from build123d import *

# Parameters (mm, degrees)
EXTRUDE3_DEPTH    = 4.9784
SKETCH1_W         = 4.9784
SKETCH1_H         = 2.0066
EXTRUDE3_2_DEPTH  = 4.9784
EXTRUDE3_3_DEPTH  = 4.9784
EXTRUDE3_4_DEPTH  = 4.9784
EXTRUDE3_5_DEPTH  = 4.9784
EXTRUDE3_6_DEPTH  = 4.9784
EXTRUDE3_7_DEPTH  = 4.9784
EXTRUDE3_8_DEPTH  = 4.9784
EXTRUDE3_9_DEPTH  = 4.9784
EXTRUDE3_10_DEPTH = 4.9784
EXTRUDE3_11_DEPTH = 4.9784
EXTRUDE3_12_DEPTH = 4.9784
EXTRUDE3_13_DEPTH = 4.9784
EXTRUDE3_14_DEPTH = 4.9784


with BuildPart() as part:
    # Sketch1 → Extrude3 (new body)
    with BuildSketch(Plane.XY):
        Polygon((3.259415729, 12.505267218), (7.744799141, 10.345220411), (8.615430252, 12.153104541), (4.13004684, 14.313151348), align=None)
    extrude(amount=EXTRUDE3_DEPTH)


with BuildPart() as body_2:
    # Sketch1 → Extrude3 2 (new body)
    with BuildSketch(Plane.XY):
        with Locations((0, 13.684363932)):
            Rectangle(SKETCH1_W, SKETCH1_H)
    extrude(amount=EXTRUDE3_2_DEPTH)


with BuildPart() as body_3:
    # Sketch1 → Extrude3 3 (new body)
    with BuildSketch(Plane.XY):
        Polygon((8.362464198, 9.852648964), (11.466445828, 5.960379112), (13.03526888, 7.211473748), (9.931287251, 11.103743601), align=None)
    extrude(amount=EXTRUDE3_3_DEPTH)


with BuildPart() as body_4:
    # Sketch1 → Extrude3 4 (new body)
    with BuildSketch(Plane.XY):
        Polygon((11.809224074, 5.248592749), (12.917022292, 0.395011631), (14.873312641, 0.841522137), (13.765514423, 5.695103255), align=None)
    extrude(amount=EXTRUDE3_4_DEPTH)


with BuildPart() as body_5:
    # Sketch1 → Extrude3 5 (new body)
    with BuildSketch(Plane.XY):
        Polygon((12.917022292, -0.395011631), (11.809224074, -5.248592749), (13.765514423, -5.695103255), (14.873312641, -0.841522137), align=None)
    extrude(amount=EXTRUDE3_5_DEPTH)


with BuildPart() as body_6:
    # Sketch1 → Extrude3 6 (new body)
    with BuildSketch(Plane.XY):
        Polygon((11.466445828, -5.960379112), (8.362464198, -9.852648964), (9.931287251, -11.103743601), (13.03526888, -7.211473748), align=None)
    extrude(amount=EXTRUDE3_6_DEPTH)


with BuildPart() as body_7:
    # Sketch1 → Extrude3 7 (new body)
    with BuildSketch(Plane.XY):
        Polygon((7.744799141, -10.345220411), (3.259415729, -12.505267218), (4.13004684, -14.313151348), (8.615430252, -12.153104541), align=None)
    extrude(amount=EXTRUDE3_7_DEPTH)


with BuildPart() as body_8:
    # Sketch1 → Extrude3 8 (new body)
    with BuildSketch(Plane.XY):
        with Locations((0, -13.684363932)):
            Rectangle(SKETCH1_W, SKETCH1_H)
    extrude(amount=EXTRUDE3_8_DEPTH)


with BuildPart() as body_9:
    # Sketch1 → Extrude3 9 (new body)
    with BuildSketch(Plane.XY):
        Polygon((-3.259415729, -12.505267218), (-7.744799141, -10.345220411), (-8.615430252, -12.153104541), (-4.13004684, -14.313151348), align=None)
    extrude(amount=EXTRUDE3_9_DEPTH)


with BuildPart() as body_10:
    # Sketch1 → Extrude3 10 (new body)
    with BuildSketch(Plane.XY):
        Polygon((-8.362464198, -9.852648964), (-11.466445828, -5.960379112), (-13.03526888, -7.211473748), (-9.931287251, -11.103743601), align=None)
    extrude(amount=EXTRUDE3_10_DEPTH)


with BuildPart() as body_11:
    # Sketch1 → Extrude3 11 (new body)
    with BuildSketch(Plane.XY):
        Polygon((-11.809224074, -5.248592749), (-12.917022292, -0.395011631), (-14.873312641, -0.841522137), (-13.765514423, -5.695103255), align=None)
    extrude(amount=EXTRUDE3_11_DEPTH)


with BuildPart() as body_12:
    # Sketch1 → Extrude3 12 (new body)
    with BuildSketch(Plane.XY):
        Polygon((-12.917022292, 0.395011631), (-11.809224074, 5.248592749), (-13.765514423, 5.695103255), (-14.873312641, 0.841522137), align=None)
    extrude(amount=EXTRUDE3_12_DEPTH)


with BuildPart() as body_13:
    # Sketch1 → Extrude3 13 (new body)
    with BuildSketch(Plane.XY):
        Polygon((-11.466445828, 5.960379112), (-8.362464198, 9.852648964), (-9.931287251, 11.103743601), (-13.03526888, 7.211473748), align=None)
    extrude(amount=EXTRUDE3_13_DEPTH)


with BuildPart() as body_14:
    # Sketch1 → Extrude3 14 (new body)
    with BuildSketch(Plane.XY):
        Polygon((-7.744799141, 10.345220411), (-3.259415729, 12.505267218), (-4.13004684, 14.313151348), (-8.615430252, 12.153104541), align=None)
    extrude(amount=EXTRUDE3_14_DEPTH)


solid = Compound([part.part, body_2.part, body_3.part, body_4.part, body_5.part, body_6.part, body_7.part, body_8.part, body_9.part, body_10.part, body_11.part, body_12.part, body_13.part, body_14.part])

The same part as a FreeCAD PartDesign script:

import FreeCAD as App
import Part
import Sketcher
Q = App.Units.Quantity

doc = App.newDocument("Part")
body = doc.addObject("PartDesign::Body", "Body")

sketch1 = body.newObject("Sketcher::SketchObject", "Sketch")
sketch1.AttachmentSupport = (doc.getObject("XY_Plane"), [""])
sketch1.MapMode = "FlatFace"
sketch1.addGeometry([
    Part.LineSegment(App.Vector(3.3, 12.5, 0), App.Vector(7.7, 10.3, 0)),
    Part.LineSegment(App.Vector(7.7, 10.3, 0), App.Vector(8.6, 12.2, 0)),
    Part.LineSegment(App.Vector(8.6, 12.2, 0), App.Vector(4.1, 14.3, 0)),
    Part.LineSegment(App.Vector(4.1, 14.3, 0), App.Vector(3.3, 12.5, 0)),
], False)
sketch1.addConstraint([
    Sketcher.Constraint("Coincident", 0, 2, 1, 1),
    Sketcher.Constraint("Coincident", 1, 2, 2, 1),
    Sketcher.Constraint("Coincident", 2, 2, 3, 1),
    Sketcher.Constraint("Coincident", 3, 2, 0, 1),
    Sketcher.Constraint("Perpendicular", 0, 1),
    Sketcher.Constraint("Perpendicular", 1, 2),
    Sketcher.Constraint("Perpendicular", 2, 3),
    Sketcher.Constraint("Distance", 0, Q("0.196 in")),
    Sketcher.Constraint("Distance", 1, Q("0.079 in")),
    Sketcher.Constraint("DistanceX", -1, 1, 0, 2, Q("7.744799 mm")),
    Sketcher.Constraint("DistanceY", -1, 1, 0, 2, Q("10.34522 mm")),
    Sketcher.Constraint("DistanceX", -1, 1, 1, 2, Q("8.61543 mm")),
])
pad1 = body.newObject("PartDesign::Pad", "Pad")
pad1.Profile = sketch1
pad1.Length = Q("0.196 in")
body2 = doc.addObject("PartDesign::Body", "Body001")

sketch2 = body2.newObject("Sketcher::SketchObject", "Sketch001")
sketch2.AttachmentSupport = (doc.getObject("XY_Plane001"), [""])
sketch2.MapMode = "FlatFace"
sketch2.addGeometry([
    Part.LineSegment(App.Vector(-2.5, 14.7, 0), App.Vector(-2.5, 12.7, 0)),
    Part.LineSegment(App.Vector(-2.5, 12.7, 0), App.Vector(2.5, 12.7, 0)),
    Part.LineSegment(App.Vector(2.5, 12.7, 0), App.Vector(2.5, 14.7, 0)),
    Part.LineSegment(App.Vector(2.5, 14.7, 0), App.Vector(-2.5, 14.7, 0)),
], False)
sketch2.addConstraint([
    Sketcher.Constraint("Coincident", 0, 2, 1, 1),
    Sketcher.Constraint("Coincident", 1, 2, 2, 1),
    Sketcher.Constraint("Coincident", 2, 2, 3, 1),
    Sketcher.Constraint("Coincident", 3, 2, 0, 1),
    Sketcher.Constraint("Vertical", 0),
    Sketcher.Constraint("Horizontal", 1),
    Sketcher.Constraint("Vertical", 2),
    Sketcher.Constraint("Horizontal", 3),
    Sketcher.Constraint("DistanceX", 1, 1, 1, 2, Q("0.196 in")),
    Sketcher.Constraint("DistanceY", 0, 2, 0, 1, Q("0.079 in")),
    Sketcher.Constraint("DistanceX", 0, 2, -1, 1, Q("0.098 in")),
    Sketcher.Constraint("DistanceY", -1, 1, 0, 2, Q("12.681064 mm")),
])
pad2 = body2.newObject("PartDesign::Pad", "Pad001")
pad2.Profile = sketch2
pad2.Length = Q("0.196 in")
body3 = doc.addObject("PartDesign::Body", "Body002")

sketch3 = body3.newObject("Sketcher::SketchObject", "Sketch002")
sketch3.AttachmentSupport = (doc.getObject("XY_Plane002"), [""])
sketch3.MapMode = "FlatFace"
sketch3.addGeometry([
    Part.LineSegment(App.Vector(8.4, 9.9, 0), App.Vector(11.5, 6, 0)),
    Part.LineSegment(App.Vector(11.5, 6, 0), App.Vector(13, 7.2, 0)),
    Part.LineSegment(App.Vector(13, 7.2, 0), App.Vector(9.9, 11.1, 0)),
    Part.LineSegment(App.Vector(9.9, 11.1, 0), App.Vector(8.4, 9.9, 0)),
], False)
sketch3.addConstraint([
    Sketcher.Constraint("Coincident", 0, 2, 1, 1),
    Sketcher.Constraint("Coincident", 1, 2, 2, 1),
    Sketcher.Constraint("Coincident", 2, 2, 3, 1),
    Sketcher.Constraint("Coincident", 3, 2, 0, 1),
    Sketcher.Constraint("Perpendicular", 0, 1),
    Sketcher.Constraint("Perpendicular", 1, 2),
    Sketcher.Constraint("Perpendicular", 2, 3),
    Sketcher.Constraint("Distance", 0, Q("0.196 in")),
    Sketcher.Constraint("Distance", 1, Q("0.079 in")),
    Sketcher.Constraint("DistanceY", -1, 1, 0, 2, Q("5.960379 mm")),
    Sketcher.Constraint("DistanceX", -1, 1, 1, 2, Q("13.035269 mm")),
    Sketcher.Constraint("DistanceY", -1, 1, 3, 2, Q("9.852649 mm")),
])
pad3 = body3.newObject("PartDesign::Pad", "Pad002")
pad3.Profile = sketch3
pad3.Length = Q("0.196 in")
body4 = doc.addObject("PartDesign::Body", "Body003")

sketch4 = body4.newObject("Sketcher::SketchObject", "Sketch003")
sketch4.AttachmentSupport = (doc.getObject("XY_Plane003"), [""])
sketch4.MapMode = "FlatFace"
sketch4.addGeometry([
    Part.LineSegment(App.Vector(11.8, 5.2, 0), App.Vector(12.9, 0.4, 0)),
    Part.LineSegment(App.Vector(12.9, 0.4, 0), App.Vector(14.9, 0.8, 0)),
    Part.LineSegment(App.Vector(14.9, 0.8, 0), App.Vector(13.8, 5.7, 0)),
    Part.LineSegment(App.Vector(13.8, 5.7, 0), App.Vector(11.8, 5.2, 0)),
], False)
sketch4.addConstraint([
    Sketcher.Constraint("Coincident", 0, 2, 1, 1),
    Sketcher.Constraint("Coincident", 1, 2, 2, 1),
    Sketcher.Constraint("Coincident", 2, 2, 3, 1),
    Sketcher.Constraint("Coincident", 3, 2, 0, 1),
    Sketcher.Constraint("Perpendicular", 0, 1),
    Sketcher.Constraint("Perpendicular", 1, 2),
    Sketcher.Constraint("Perpendicular", 2, 3),
    Sketcher.Constraint("Distance", 0, Q("0.196 in")),
    Sketcher.Constraint("Distance", 1, Q("0.079 in")),
    Sketcher.Constraint("DistanceX", 2, 2, 1, 2, Q("1.107798 mm")),
    Sketcher.Constraint("DistanceY", -1, 1, 0, 2, Q("0.395012 mm")),
    Sketcher.Constraint("DistanceX", -1, 1, 0, 2, Q("12.917022 mm")),
])
pad4 = body4.newObject("PartDesign::Pad", "Pad003")
pad4.Profile = sketch4
pad4.Length = Q("0.196 in")
body5 = doc.addObject("PartDesign::Body", "Body004")

sketch5 = body5.newObject("Sketcher::SketchObject", "Sketch004")
sketch5.AttachmentSupport = (doc.getObject("XY_Plane004"), [""])
sketch5.MapMode = "FlatFace"
sketch5.addGeometry([
    Part.LineSegment(App.Vector(12.9, -0.4, 0), App.Vector(11.8, -5.2, 0)),
    Part.LineSegment(App.Vector(11.8, -5.2, 0), App.Vector(13.8, -5.7, 0)),
    Part.LineSegment(App.Vector(13.8, -5.7, 0), App.Vector(14.9, -0.8, 0)),
    Part.LineSegment(App.Vector(14.9, -0.8, 0), App.Vector(12.9, -0.4, 0)),
], False)
sketch5.addConstraint([
    Sketcher.Constraint("Coincident", 0, 2, 1, 1),
    Sketcher.Constraint("Coincident", 1, 2, 2, 1),
    Sketcher.Constraint("Coincident", 2, 2, 3, 1),
    Sketcher.Constraint("Coincident", 3, 2, 0, 1),
    Sketcher.Constraint("Perpendicular", 0, 1),
    Sketcher.Constraint("Perpendicular", 1, 2),
    Sketcher.Constraint("Perpendicular", 2, 3),
    Sketcher.Constraint("Distance", 0, Q("0.196 in")),
    Sketcher.Constraint("Distance", 1, Q("0.079 in")),
    Sketcher.Constraint("DistanceX", 1, 2, 2, 2, Q("1.107798 mm")),
    Sketcher.Constraint("DistanceY", 3, 2, -1, 1, Q("0.395012 mm")),
    Sketcher.Constraint("DistanceX", -1, 1, 0, 2, Q("11.809224 mm")),
])
pad5 = body5.newObject("PartDesign::Pad", "Pad004")
pad5.Profile = sketch5
pad5.Length = Q("0.196 in")
body6 = doc.addObject("PartDesign::Body", "Body005")

sketch6 = body6.newObject("Sketcher::SketchObject", "Sketch005")
sketch6.AttachmentSupport = (doc.getObject("XY_Plane005"), [""])
sketch6.MapMode = "FlatFace"
sketch6.addGeometry([
    Part.LineSegment(App.Vector(11.5, -6, 0), App.Vector(8.4, -9.9, 0)),
    Part.LineSegment(App.Vector(8.4, -9.9, 0), App.Vector(9.9, -11.1, 0)),
    Part.LineSegment(App.Vector(9.9, -11.1, 0), App.Vector(13, -7.2, 0)),
    Part.LineSegment(App.Vector(13, -7.2, 0), App.Vector(11.5, -6, 0)),
], False)
sketch6.addConstraint([
    Sketcher.Constraint("Coincident", 0, 2, 1, 1),
    Sketcher.Constraint("Coincident", 1, 2, 2, 1),
    Sketcher.Constraint("Coincident", 2, 2, 3, 1),
    Sketcher.Constraint("Coincident", 3, 2, 0, 1),
    Sketcher.Constraint("Perpendicular", 0, 1),
    Sketcher.Constraint("Perpendicular", 1, 2),
    Sketcher.Constraint("Perpendicular", 2, 3),
    Sketcher.Constraint("Distance", 0, Q("0.196 in")),
    Sketcher.Constraint("Distance", 1, Q("0.079 in")),
    Sketcher.Constraint("DistanceY", 0, 2, -1, 1, Q("9.852649 mm")),
    Sketcher.Constraint("DistanceX", -1, 1, 2, 2, Q("13.035269 mm")),
    Sketcher.Constraint("DistanceY", 3, 2, -1, 1, Q("5.960379 mm")),
])
pad6 = body6.newObject("PartDesign::Pad", "Pad005")
pad6.Profile = sketch6
pad6.Length = Q("0.196 in")
body7 = doc.addObject("PartDesign::Body", "Body006")

sketch7 = body7.newObject("Sketcher::SketchObject", "Sketch006")
sketch7.AttachmentSupport = (doc.getObject("XY_Plane006"), [""])
sketch7.MapMode = "FlatFace"
sketch7.addGeometry([
    Part.LineSegment(App.Vector(7.7, -10.3, 0), App.Vector(3.3, -12.5, 0)),
    Part.LineSegment(App.Vector(3.3, -12.5, 0), App.Vector(4.1, -14.3, 0)),
    Part.LineSegment(App.Vector(4.1, -14.3, 0), App.Vector(8.6, -12.2, 0)),
    Part.LineSegment(App.Vector(8.6, -12.2, 0), App.Vector(7.7, -10.3, 0)),
], False)
sketch7.addConstraint([
    Sketcher.Constraint("Coincident", 0, 2, 1, 1),
    Sketcher.Constraint("Coincident", 1, 2, 2, 1),
    Sketcher.Constraint("Coincident", 2, 2, 3, 1),
    Sketcher.Constraint("Coincident", 3, 2, 0, 1),
    Sketcher.Constraint("Perpendicular", 0, 1),
    Sketcher.Constraint("Perpendicular", 1, 2),
    Sketcher.Constraint("Perpendicular", 2, 3),
    Sketcher.Constraint("Distance", 0, Q("0.196 in")),
    Sketcher.Constraint("Distance", 1, Q("0.079 in")),
    Sketcher.Constraint("DistanceX", -1, 1, 3, 2, Q("7.744799 mm")),
    Sketcher.Constraint("DistanceY", 1, 2, -1, 1, Q("14.313151 mm")),
    Sketcher.Constraint("DistanceX", -1, 1, 2, 2, Q("8.61543 mm")),
])
pad7 = body7.newObject("PartDesign::Pad", "Pad006")
pad7.Profile = sketch7
pad7.Length = Q("0.196 in")
body8 = doc.addObject("PartDesign::Body", "Body007")

sketch8 = body8.newObject("Sketcher::SketchObject", "Sketch007")
sketch8.AttachmentSupport = (doc.getObject("XY_Plane007"), [""])
sketch8.MapMode = "FlatFace"
sketch8.addGeometry([
    Part.LineSegment(App.Vector(-2.5, -12.7, 0), App.Vector(-2.5, -14.7, 0)),
    Part.LineSegment(App.Vector(-2.5, -14.7, 0), App.Vector(2.5, -14.7, 0)),
    Part.LineSegment(App.Vector(2.5, -14.7, 0), App.Vector(2.5, -12.7, 0)),
    Part.LineSegment(App.Vector(2.5, -12.7, 0), App.Vector(-2.5, -12.7, 0)),
], False)
sketch8.addConstraint([
    Sketcher.Constraint("Coincident", 0, 2, 1, 1),
    Sketcher.Constraint("Coincident", 1, 2, 2, 1),
    Sketcher.Constraint("Coincident", 2, 2, 3, 1),
    Sketcher.Constraint("Coincident", 3, 2, 0, 1),
    Sketcher.Constraint("Vertical", 0),
    Sketcher.Constraint("Horizontal", 1),
    Sketcher.Constraint("Vertical", 2),
    Sketcher.Constraint("Horizontal", 3),
    Sketcher.Constraint("DistanceX", 1, 1, 1, 2, Q("0.196 in")),
    Sketcher.Constraint("DistanceY", 0, 2, 0, 1, Q("0.079 in")),
    Sketcher.Constraint("DistanceX", 0, 2, -1, 1, Q("0.098 in")),
    Sketcher.Constraint("DistanceY", 0, 2, -1, 1, Q("14.687664 mm")),
])
pad8 = body8.newObject("PartDesign::Pad", "Pad007")
pad8.Profile = sketch8
pad8.Length = Q("0.196 in")
body9 = doc.addObject("PartDesign::Body", "Body008")

sketch9 = body9.newObject("Sketcher::SketchObject", "Sketch008")
sketch9.AttachmentSupport = (doc.getObject("XY_Plane008"), [""])
sketch9.MapMode = "FlatFace"
sketch9.addGeometry([
    Part.LineSegment(App.Vector(-3.3, -12.5, 0), App.Vector(-7.7, -10.3, 0)),
    Part.LineSegment(App.Vector(-7.7, -10.3, 0), App.Vector(-8.6, -12.2, 0)),
    Part.LineSegment(App.Vector(-8.6, -12.2, 0), App.Vector(-4.1, -14.3, 0)),
    Part.LineSegment(App.Vector(-4.1, -14.3, 0), App.Vector(-3.3, -12.5, 0)),
], False)
sketch9.addConstraint([
    Sketcher.Constraint("Coincident", 0, 2, 1, 1),
    Sketcher.Constraint("Coincident", 1, 2, 2, 1),
    Sketcher.Constraint("Coincident", 2, 2, 3, 1),
    Sketcher.Constraint("Coincident", 3, 2, 0, 1),
    Sketcher.Constraint("Perpendicular", 0, 1),
    Sketcher.Constraint("Perpendicular", 1, 2),
    Sketcher.Constraint("Perpendicular", 2, 3),
    Sketcher.Constraint("Distance", 0, Q("0.196 in")),
    Sketcher.Constraint("Distance", 1, Q("0.079 in")),
    Sketcher.Constraint("DistanceX", 0, 2, -1, 1, Q("7.744799 mm")),
    Sketcher.Constraint("DistanceY", 0, 2, -1, 1, Q("10.34522 mm")),
    Sketcher.Constraint("DistanceX", 1, 2, -1, 1, Q("8.61543 mm")),
])
pad9 = body9.newObject("PartDesign::Pad", "Pad008")
pad9.Profile = sketch9
pad9.Length = Q("0.196 in")
body10 = doc.addObject("PartDesign::Body", "Body009")

sketch10 = body10.newObject("Sketcher::SketchObject", "Sketch009")
sketch10.AttachmentSupport = (doc.getObject("XY_Plane009"), [""])
sketch10.MapMode = "FlatFace"
sketch10.addGeometry([
    Part.LineSegment(App.Vector(-8.4, -9.9, 0), App.Vector(-11.5, -6, 0)),
    Part.LineSegment(App.Vector(-11.5, -6, 0), App.Vector(-13, -7.2, 0)),
    Part.LineSegment(App.Vector(-13, -7.2, 0), App.Vector(-9.9, -11.1, 0)),
    Part.LineSegment(App.Vector(-9.9, -11.1, 0), App.Vector(-8.4, -9.9, 0)),
], False)
sketch10.addConstraint([
    Sketcher.Constraint("Coincident", 0, 2, 1, 1),
    Sketcher.Constraint("Coincident", 1, 2, 2, 1),
    Sketcher.Constraint("Coincident", 2, 2, 3, 1),
    Sketcher.Constraint("Coincident", 3, 2, 0, 1),
    Sketcher.Constraint("Perpendicular", 0, 1),
    Sketcher.Constraint("Perpendicular", 1, 2),
    Sketcher.Constraint("Perpendicular", 2, 3),
    Sketcher.Constraint("Distance", 0, Q("0.196 in")),
    Sketcher.Constraint("Distance", 1, Q("0.079 in")),
    Sketcher.Constraint("DistanceY", 0, 2, -1, 1, Q("5.960379 mm")),
    Sketcher.Constraint("DistanceX", 1, 2, -1, 1, Q("13.035269 mm")),
    Sketcher.Constraint("DistanceY", 3, 2, -1, 1, Q("9.852649 mm")),
])
pad10 = body10.newObject("PartDesign::Pad", "Pad009")
pad10.Profile = sketch10
pad10.Length = Q("0.196 in")
body11 = doc.addObject("PartDesign::Body", "Body010")

sketch11 = body11.newObject("Sketcher::SketchObject", "Sketch010")
sketch11.AttachmentSupport = (doc.getObject("XY_Plane010"), [""])
sketch11.MapMode = "FlatFace"
sketch11.addGeometry([
    Part.LineSegment(App.Vector(-11.8, -5.2, 0), App.Vector(-12.9, -0.4, 0)),
    Part.LineSegment(App.Vector(-12.9, -0.4, 0), App.Vector(-14.9, -0.8, 0)),
    Part.LineSegment(App.Vector(-14.9, -0.8, 0), App.Vector(-13.8, -5.7, 0)),
    Part.LineSegment(App.Vector(-13.8, -5.7, 0), App.Vector(-11.8, -5.2, 0)),
], False)
sketch11.addConstraint([
    Sketcher.Constraint("Coincident", 0, 2, 1, 1),
    Sketcher.Constraint("Coincident", 1, 2, 2, 1),
    Sketcher.Constraint("Coincident", 2, 2, 3, 1),
    Sketcher.Constraint("Coincident", 3, 2, 0, 1),
    Sketcher.Constraint("Perpendicular", 0, 1),
    Sketcher.Constraint("Perpendicular", 1, 2),
    Sketcher.Constraint("Perpendicular", 2, 3),
    Sketcher.Constraint("Distance", 0, Q("0.196 in")),
    Sketcher.Constraint("Distance", 1, Q("0.079 in")),
    Sketcher.Constraint("DistanceX", 1, 2, 2, 2, Q("1.107798 mm")),
    Sketcher.Constraint("DistanceY", 0, 2, -1, 1, Q("0.395012 mm")),
    Sketcher.Constraint("DistanceX", 0, 2, -1, 1, Q("12.917022 mm")),
])
pad11 = body11.newObject("PartDesign::Pad", "Pad010")
pad11.Profile = sketch11
pad11.Length = Q("0.196 in")
body12 = doc.addObject("PartDesign::Body", "Body011")

sketch12 = body12.newObject("Sketcher::SketchObject", "Sketch011")
sketch12.AttachmentSupport = (doc.getObject("XY_Plane011"), [""])
sketch12.MapMode = "FlatFace"
sketch12.addGeometry([
    Part.LineSegment(App.Vector(-12.9, 0.4, 0), App.Vector(-11.8, 5.2, 0)),
    Part.LineSegment(App.Vector(-11.8, 5.2, 0), App.Vector(-13.8, 5.7, 0)),
    Part.LineSegment(App.Vector(-13.8, 5.7, 0), App.Vector(-14.9, 0.8, 0)),
    Part.LineSegment(App.Vector(-14.9, 0.8, 0), App.Vector(-12.9, 0.4, 0)),
], False)
sketch12.addConstraint([
    Sketcher.Constraint("Coincident", 0, 2, 1, 1),
    Sketcher.Constraint("Coincident", 1, 2, 2, 1),
    Sketcher.Constraint("Coincident", 2, 2, 3, 1),
    Sketcher.Constraint("Coincident", 3, 2, 0, 1),
    Sketcher.Constraint("Perpendicular", 0, 1),
    Sketcher.Constraint("Perpendicular", 1, 2),
    Sketcher.Constraint("Perpendicular", 2, 3),
    Sketcher.Constraint("Distance", 0, Q("0.196 in")),
    Sketcher.Constraint("Distance", 1, Q("0.079 in")),
    Sketcher.Constraint("DistanceX", 2, 2, 1, 2, Q("1.107798 mm")),
    Sketcher.Constraint("DistanceY", -1, 1, 3, 2, Q("0.395012 mm")),
    Sketcher.Constraint("DistanceX", 0, 2, -1, 1, Q("11.809224 mm")),
])
pad12 = body12.newObject("PartDesign::Pad", "Pad011")
pad12.Profile = sketch12
pad12.Length = Q("0.196 in")
body13 = doc.addObject("PartDesign::Body", "Body012")

sketch13 = body13.newObject("Sketcher::SketchObject", "Sketch012")
sketch13.AttachmentSupport = (doc.getObject("XY_Plane012"), [""])
sketch13.MapMode = "FlatFace"
sketch13.addGeometry([
    Part.LineSegment(App.Vector(-11.5, 6, 0), App.Vector(-8.4, 9.9, 0)),
    Part.LineSegment(App.Vector(-8.4, 9.9, 0), App.Vector(-9.9, 11.1, 0)),
    Part.LineSegment(App.Vector(-9.9, 11.1, 0), App.Vector(-13, 7.2, 0)),
    Part.LineSegment(App.Vector(-13, 7.2, 0), App.Vector(-11.5, 6, 0)),
], False)
sketch13.addConstraint([
    Sketcher.Constraint("Coincident", 0, 2, 1, 1),
    Sketcher.Constraint("Coincident", 1, 2, 2, 1),
    Sketcher.Constraint("Coincident", 2, 2, 3, 1),
    Sketcher.Constraint("Coincident", 3, 2, 0, 1),
    Sketcher.Constraint("Perpendicular", 0, 1),
    Sketcher.Constraint("Perpendicular", 1, 2),
    Sketcher.Constraint("Perpendicular", 2, 3),
    Sketcher.Constraint("Distance", 0, Q("0.196 in")),
    Sketcher.Constraint("Distance", 1, Q("0.079 in")),
    Sketcher.Constraint("DistanceY", -1, 1, 0, 2, Q("9.852649 mm")),
    Sketcher.Constraint("DistanceX", 2, 2, -1, 1, Q("13.035269 mm")),
    Sketcher.Constraint("DistanceY", -1, 1, 3, 2, Q("5.960379 mm")),
])
pad13 = body13.newObject("PartDesign::Pad", "Pad012")
pad13.Profile = sketch13
pad13.Length = Q("0.196 in")
body14 = doc.addObject("PartDesign::Body", "Body013")

sketch14 = body14.newObject("Sketcher::SketchObject", "Sketch013")
sketch14.AttachmentSupport = (doc.getObject("XY_Plane013"), [""])
sketch14.MapMode = "FlatFace"
sketch14.addGeometry([
    Part.LineSegment(App.Vector(-7.7, 10.3, 0), App.Vector(-3.3, 12.5, 0)),
    Part.LineSegment(App.Vector(-3.3, 12.5, 0), App.Vector(-4.1, 14.3, 0)),
    Part.LineSegment(App.Vector(-4.1, 14.3, 0), App.Vector(-8.6, 12.2, 0)),
    Part.LineSegment(App.Vector(-8.6, 12.2, 0), App.Vector(-7.7, 10.3, 0)),
], False)
sketch14.addConstraint([
    Sketcher.Constraint("Coincident", 0, 2, 1, 1),
    Sketcher.Constraint("Coincident", 1, 2, 2, 1),
    Sketcher.Constraint("Coincident", 2, 2, 3, 1),
    Sketcher.Constraint("Coincident", 3, 2, 0, 1),
    Sketcher.Constraint("Perpendicular", 0, 1),
    Sketcher.Constraint("Perpendicular", 1, 2),
    Sketcher.Constraint("Perpendicular", 2, 3),
    Sketcher.Constraint("Distance", 0, Q("0.196 in")),
    Sketcher.Constraint("Distance", 1, Q("0.079 in")),
    Sketcher.Constraint("DistanceX", 3, 2, -1, 1, Q("7.744799 mm")),
    Sketcher.Constraint("DistanceY", -1, 1, 1, 2, Q("14.313151 mm")),
    Sketcher.Constraint("DistanceX", 2, 2, -1, 1, Q("8.61543 mm")),
])
pad14 = body14.newObject("PartDesign::Pad", "Pad013")
pad14.Profile = sketch14
pad14.Length = Q("0.196 in")

doc.recompute()
